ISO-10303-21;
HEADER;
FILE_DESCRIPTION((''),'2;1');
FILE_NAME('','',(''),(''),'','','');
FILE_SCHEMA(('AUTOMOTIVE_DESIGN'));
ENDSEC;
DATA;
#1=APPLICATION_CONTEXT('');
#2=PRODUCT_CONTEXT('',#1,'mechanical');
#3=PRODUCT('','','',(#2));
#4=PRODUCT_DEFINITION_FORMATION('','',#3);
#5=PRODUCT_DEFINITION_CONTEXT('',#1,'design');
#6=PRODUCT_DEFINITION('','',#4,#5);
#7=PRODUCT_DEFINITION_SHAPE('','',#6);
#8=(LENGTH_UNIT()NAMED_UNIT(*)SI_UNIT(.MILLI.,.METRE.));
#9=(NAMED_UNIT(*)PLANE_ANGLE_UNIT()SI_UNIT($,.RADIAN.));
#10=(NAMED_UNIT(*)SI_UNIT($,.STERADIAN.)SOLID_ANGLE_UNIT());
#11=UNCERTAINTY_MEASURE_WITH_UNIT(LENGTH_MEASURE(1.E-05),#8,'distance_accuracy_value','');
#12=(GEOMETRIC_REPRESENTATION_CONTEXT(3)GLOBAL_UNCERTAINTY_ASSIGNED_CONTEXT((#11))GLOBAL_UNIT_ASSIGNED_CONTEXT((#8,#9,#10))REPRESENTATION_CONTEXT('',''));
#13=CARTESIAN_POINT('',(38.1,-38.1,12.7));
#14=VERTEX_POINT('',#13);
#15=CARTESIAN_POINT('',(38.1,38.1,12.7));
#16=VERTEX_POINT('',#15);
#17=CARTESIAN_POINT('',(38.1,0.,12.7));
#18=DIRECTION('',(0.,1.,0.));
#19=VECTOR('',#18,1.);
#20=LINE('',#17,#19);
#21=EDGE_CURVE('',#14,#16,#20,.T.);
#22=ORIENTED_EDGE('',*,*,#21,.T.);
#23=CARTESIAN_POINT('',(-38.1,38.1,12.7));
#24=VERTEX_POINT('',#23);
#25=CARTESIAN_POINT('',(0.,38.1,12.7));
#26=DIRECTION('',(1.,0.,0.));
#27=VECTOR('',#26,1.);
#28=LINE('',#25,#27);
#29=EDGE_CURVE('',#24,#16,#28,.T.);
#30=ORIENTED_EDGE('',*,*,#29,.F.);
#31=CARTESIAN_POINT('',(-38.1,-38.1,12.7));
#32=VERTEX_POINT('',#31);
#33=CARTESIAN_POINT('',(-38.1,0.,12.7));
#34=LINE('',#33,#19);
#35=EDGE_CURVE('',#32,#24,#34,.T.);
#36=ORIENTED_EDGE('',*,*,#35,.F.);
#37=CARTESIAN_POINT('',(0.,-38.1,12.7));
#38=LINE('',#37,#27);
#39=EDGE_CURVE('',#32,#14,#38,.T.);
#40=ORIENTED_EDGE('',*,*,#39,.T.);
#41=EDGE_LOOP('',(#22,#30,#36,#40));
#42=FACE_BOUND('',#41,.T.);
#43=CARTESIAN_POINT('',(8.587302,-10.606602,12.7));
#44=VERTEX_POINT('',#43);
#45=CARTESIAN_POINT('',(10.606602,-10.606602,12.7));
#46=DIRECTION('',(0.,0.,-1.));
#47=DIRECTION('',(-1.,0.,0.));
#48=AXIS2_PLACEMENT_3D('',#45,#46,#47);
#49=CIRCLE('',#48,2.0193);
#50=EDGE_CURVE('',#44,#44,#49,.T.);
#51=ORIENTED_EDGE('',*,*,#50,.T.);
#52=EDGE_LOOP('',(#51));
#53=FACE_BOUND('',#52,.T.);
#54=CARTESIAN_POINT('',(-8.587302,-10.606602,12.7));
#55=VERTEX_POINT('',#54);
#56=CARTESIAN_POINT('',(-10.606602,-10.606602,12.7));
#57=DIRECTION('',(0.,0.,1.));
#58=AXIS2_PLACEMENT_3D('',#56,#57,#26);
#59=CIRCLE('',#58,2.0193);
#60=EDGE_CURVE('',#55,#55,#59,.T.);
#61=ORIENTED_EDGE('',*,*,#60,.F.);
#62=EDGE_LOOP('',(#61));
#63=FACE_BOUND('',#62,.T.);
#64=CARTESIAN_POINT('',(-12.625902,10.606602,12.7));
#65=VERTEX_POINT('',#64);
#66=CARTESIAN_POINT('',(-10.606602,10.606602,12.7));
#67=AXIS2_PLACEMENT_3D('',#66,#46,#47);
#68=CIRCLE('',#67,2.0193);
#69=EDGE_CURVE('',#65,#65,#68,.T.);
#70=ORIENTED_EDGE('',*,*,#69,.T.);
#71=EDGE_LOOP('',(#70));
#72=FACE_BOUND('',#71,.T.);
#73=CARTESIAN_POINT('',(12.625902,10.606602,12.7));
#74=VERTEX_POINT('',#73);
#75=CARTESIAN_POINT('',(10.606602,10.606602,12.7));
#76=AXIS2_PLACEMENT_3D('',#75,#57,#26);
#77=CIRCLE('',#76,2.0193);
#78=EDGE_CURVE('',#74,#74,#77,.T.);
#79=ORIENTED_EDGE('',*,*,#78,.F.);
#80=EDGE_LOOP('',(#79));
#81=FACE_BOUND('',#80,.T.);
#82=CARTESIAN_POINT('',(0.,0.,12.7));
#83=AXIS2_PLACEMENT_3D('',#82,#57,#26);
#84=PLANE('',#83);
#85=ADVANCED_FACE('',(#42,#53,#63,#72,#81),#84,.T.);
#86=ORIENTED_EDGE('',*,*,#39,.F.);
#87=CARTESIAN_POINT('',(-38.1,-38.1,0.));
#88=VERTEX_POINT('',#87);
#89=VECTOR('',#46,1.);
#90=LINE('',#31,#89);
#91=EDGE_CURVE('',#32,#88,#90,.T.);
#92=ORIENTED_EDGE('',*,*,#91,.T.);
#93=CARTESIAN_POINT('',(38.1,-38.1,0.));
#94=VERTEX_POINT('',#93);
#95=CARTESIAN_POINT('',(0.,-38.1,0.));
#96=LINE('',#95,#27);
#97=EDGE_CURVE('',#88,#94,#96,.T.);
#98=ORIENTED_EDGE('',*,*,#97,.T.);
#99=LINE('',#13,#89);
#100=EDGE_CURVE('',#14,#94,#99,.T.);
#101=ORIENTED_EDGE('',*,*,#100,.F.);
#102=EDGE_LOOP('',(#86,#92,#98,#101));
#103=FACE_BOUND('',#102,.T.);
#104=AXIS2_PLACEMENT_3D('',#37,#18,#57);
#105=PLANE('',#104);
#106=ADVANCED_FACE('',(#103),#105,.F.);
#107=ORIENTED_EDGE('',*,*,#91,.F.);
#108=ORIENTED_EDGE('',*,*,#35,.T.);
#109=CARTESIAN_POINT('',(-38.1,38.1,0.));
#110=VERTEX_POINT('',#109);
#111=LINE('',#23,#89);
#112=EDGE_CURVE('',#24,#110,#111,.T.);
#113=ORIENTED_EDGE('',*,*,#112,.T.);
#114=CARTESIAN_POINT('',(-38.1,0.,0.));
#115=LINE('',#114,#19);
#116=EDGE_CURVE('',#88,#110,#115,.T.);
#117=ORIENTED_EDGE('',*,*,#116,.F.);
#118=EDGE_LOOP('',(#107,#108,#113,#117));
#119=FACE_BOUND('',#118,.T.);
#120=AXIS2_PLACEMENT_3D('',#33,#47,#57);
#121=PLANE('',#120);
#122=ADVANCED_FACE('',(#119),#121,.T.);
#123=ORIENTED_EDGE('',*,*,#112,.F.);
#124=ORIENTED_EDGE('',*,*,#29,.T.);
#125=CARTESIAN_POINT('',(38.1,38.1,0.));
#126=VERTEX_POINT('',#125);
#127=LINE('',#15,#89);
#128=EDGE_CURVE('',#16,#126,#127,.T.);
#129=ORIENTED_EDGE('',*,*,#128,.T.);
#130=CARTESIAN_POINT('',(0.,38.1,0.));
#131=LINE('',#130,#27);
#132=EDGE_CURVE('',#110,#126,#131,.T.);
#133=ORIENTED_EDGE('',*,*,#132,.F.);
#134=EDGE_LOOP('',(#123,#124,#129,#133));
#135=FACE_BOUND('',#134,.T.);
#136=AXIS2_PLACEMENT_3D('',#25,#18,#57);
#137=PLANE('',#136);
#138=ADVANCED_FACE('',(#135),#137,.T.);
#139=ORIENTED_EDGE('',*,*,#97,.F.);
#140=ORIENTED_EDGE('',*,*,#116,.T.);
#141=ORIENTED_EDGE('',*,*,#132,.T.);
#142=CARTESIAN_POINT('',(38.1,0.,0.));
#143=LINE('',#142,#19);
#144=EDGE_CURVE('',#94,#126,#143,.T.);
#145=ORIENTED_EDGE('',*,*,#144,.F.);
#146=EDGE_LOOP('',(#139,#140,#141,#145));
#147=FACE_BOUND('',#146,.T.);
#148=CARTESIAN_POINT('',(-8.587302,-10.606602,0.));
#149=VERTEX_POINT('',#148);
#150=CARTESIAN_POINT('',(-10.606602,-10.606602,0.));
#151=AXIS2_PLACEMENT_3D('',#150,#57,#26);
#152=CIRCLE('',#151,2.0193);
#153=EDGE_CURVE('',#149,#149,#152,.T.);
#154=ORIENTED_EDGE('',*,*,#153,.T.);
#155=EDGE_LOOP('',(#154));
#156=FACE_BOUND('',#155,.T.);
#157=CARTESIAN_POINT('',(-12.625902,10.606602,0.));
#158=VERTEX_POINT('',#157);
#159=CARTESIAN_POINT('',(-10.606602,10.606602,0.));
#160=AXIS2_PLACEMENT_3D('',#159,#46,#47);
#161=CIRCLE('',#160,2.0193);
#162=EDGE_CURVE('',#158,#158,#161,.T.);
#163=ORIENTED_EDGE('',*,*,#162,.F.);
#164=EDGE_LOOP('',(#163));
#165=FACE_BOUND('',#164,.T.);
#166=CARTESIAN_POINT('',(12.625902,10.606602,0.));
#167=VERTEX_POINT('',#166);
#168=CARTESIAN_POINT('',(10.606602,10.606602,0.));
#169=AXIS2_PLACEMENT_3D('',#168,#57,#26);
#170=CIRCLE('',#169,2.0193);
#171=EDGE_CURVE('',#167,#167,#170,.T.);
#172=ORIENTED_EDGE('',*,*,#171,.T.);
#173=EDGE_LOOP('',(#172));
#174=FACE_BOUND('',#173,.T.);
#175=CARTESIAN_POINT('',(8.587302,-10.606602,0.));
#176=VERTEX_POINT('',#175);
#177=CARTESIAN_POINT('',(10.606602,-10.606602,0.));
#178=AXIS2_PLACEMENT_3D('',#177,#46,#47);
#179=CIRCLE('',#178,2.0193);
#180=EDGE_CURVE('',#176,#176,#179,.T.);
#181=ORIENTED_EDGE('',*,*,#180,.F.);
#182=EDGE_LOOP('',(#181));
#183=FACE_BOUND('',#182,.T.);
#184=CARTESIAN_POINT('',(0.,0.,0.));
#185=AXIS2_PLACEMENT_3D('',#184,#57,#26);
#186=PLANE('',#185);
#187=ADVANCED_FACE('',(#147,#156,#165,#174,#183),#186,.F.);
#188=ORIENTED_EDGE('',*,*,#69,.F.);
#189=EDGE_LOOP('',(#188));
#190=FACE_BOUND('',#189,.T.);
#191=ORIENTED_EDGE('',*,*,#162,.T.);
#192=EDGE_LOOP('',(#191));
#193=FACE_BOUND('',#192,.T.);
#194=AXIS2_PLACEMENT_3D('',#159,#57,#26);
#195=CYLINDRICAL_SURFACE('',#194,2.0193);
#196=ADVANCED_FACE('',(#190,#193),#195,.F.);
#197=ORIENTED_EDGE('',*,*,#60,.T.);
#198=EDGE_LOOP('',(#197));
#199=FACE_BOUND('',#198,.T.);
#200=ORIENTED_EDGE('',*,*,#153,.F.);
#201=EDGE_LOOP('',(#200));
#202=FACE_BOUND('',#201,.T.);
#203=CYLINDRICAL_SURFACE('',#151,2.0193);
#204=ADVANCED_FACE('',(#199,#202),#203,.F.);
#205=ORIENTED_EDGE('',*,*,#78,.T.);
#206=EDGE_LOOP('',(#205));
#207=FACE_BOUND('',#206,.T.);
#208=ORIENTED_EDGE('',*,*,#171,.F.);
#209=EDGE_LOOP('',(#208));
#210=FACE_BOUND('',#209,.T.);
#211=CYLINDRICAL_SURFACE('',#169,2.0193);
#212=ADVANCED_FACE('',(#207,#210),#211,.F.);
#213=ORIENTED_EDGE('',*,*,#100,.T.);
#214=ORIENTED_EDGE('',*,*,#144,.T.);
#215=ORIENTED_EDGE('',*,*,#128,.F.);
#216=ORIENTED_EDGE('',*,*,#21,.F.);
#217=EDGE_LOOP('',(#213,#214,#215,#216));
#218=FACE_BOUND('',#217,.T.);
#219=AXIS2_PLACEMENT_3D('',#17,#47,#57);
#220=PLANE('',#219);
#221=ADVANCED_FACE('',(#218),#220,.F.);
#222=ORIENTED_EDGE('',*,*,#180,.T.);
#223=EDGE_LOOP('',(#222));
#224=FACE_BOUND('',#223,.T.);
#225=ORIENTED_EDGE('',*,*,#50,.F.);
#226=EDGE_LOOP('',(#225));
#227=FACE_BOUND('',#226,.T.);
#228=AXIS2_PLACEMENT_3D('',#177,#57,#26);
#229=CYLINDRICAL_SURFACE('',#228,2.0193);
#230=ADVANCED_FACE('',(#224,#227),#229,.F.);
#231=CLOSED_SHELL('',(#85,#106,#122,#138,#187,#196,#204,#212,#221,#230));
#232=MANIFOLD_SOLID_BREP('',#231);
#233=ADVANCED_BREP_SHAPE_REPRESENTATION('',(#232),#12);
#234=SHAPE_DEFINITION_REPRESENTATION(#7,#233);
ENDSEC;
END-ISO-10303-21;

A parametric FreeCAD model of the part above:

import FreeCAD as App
import Part
import Sketcher
from FreeCAD import Vector
Q = App.Units.Quantity


def add_polygon(sketch, points):
    """Adds a closed chain of lines whose ends are joined by coincident constraints."""
    first, n = sketch.GeometryCount, len(points)
    for a, b in zip(points, points[1:] + points[:1]):
        sketch.addGeometry(Part.LineSegment(App.Vector(*a, 0), App.Vector(*b, 0)), False)
    for i in range(n):
        sketch.addConstraint(Sketcher.Constraint("Coincident", first + i, 2, first + (i + 1) % n, 1))

doc = App.newDocument("Part")
body = doc.addObject("PartDesign::Body", "Body")

sketch1 = body.newObject("Sketcher::SketchObject", "Sketch")
sketch1.AttachmentSupport = (doc.getObject("XY_Plane"), [""])
sketch1.MapMode = "FlatFace"
add_polygon(sketch1, [(-38, 38), (-38, -38), (38, -38), (38, 38)])
sketch1.addConstraint([
    Sketcher.Constraint("Vertical", 0),
    Sketcher.Constraint("Horizontal", 1),
    Sketcher.Constraint("Vertical", 2),
    Sketcher.Constraint("Horizontal", 3),
    Sketcher.Constraint("Symmetric", 0, 2, 2, 2, -1, 1),
    Sketcher.Constraint("Equal", 3, 0),
    Sketcher.Constraint("DistanceX", 1, 1, 1, 2, Q("3 in")),
])
pad1 = body.newObject("PartDesign::Pad", "Pad")
pad1.Profile = sketch1
pad1.Length = Q("0.5 in")

sketch2 = body.newObject("Sketcher::SketchObject", "Sketch001")
sketch2.AttachmentSupport = (doc.getObject("XY_Plane"), [""])
sketch2.MapMode = "FlatFace"
sketch2.AttachmentOffset = App.Placement(Vector(0, 0, 0.5 * 25.4), App.Rotation())
sketch2.addGeometry([
    Part.Circle(Vector(10.6, 10.6, 0), Vector(0, 0, 1), 2),
    Part.Circle(Vector(10.6, -10.6, 0), Vector(0, 0, 1), 2),
    Part.Circle(Vector(-10.6, -10.6, 0), Vector(0, 0, 1), 2),
    Part.Circle(Vector(-10.6, 10.6, 0), Vector(0, 0, 1), 2),
], False)
sketch2.addConstraint([
    Sketcher.Constraint("Equal", 0, 1),
    Sketcher.Constraint("Equal", 1, 2),
    Sketcher.Constraint("Equal", 2, 3),
    Sketcher.Constraint("Symmetric", 0, 3, 2, 3, -1, 1),
    Sketcher.Constraint("Symmetric", 1, 3, 3, 3, -1, 1),
    Sketcher.Constraint("Symmetric", 1, 3, 2, 3, -2),
    Sketcher.Constraint("Diameter", 0, Q("0.159 in")),
    Sketcher.Constraint("DistanceX", -1, 1, 0, 3, 10.606602),
    Sketcher.Constraint("DistanceY", -1, 1, 0, 3, 10.606602),
])
pocket1 = body.newObject("PartDesign::Pocket", "Pocket")
pocket1.Profile = sketch2
pocket1.Type = "ThroughAll"

doc.recompute()
